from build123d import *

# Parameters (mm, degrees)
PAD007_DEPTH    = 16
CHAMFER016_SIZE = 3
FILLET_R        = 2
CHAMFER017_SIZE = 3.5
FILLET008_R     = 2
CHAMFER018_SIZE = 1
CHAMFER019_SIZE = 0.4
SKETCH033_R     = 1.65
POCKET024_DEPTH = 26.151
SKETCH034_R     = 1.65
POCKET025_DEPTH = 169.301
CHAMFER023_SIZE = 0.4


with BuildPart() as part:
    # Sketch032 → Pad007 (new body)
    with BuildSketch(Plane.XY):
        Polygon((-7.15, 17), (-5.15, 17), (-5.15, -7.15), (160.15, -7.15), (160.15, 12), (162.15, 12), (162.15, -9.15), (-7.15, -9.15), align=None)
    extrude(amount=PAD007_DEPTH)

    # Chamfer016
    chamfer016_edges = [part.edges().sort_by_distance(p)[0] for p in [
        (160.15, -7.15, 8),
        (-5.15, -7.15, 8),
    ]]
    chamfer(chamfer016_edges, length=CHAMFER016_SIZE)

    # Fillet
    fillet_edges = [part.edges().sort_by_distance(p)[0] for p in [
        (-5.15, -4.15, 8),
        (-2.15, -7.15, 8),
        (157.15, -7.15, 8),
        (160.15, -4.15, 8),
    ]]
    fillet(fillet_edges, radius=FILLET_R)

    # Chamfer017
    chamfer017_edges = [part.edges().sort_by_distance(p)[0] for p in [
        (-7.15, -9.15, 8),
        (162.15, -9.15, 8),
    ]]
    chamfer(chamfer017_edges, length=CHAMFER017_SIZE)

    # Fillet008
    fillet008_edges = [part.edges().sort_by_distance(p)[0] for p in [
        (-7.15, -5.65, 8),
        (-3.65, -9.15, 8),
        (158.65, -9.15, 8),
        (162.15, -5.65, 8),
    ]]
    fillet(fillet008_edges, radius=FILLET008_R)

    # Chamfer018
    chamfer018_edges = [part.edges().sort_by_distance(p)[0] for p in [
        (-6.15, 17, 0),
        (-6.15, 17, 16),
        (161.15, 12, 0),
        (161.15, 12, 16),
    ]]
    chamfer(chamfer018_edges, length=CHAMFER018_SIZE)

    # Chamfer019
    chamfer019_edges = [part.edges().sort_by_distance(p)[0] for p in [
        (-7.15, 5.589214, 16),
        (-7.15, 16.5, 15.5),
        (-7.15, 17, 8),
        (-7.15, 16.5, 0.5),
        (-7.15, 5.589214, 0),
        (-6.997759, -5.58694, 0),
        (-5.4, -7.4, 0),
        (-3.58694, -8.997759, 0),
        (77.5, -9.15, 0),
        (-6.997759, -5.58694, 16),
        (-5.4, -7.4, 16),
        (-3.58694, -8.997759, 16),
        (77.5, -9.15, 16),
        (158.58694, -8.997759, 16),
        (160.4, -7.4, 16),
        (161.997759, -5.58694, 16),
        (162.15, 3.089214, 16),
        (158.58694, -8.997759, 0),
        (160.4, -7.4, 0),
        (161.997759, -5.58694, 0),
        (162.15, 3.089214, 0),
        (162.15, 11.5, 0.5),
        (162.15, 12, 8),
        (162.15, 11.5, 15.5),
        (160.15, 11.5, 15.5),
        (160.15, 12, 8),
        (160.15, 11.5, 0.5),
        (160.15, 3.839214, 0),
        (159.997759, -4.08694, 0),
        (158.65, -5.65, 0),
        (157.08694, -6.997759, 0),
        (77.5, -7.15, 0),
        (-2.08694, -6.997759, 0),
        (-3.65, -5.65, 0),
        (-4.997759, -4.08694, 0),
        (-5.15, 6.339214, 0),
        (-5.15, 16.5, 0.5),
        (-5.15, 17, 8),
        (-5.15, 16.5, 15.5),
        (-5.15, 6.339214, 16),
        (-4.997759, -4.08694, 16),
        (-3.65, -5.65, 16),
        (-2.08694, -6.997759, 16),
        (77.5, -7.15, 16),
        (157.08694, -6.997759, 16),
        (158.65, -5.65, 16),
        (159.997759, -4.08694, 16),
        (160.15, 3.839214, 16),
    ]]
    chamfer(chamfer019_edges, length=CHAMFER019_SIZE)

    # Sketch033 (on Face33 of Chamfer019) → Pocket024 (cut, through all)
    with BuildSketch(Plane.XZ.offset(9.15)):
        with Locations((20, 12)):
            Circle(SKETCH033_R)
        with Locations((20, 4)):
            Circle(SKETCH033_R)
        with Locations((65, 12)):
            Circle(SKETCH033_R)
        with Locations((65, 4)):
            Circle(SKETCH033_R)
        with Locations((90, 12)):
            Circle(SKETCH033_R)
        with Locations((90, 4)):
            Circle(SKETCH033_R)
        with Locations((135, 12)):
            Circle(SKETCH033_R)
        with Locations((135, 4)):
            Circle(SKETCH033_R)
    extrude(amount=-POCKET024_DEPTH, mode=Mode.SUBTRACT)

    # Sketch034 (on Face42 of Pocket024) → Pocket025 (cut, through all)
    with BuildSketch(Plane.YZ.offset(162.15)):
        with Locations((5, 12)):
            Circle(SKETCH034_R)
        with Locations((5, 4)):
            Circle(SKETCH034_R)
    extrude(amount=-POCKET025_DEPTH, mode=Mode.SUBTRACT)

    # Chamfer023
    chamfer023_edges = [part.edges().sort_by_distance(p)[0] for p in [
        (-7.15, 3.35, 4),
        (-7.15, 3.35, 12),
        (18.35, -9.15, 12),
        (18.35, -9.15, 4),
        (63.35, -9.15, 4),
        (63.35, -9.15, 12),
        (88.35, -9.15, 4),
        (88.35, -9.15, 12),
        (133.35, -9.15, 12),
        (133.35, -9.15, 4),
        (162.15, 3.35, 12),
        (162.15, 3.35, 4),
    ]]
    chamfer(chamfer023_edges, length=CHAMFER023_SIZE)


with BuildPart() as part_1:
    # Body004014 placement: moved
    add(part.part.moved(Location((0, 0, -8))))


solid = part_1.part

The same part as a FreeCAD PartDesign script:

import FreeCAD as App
import Part
import Sketcher
from FreeCAD import Vector


def edges_at(feature, points):
    """Names of the edges that pass closest to the given points."""
    edges = feature.Shape.Edges
    near = lambda p: min(range(len(edges)), key=lambda i: edges[i].distToShape(Part.Vertex(*p))[0])
    return sorted({f"Edge{near(p) + 1}" for p in points})


def add_polygon(sketch, points):
    """Adds a closed chain of lines whose ends are joined by coincident constraints."""
    first, n = sketch.GeometryCount, len(points)
    for a, b in zip(points, points[1:] + points[:1]):
        sketch.addGeometry(Part.LineSegment(App.Vector(*a, 0), App.Vector(*b, 0)), False)
    for i in range(n):
        sketch.addConstraint(Sketcher.Constraint("Coincident", first + i, 2, first + (i + 1) % n, 1))

doc = App.newDocument("Part")
body = doc.addObject("PartDesign::Body", "Body")

sketch1 = doc.addObject("Sketcher::SketchObject", "Sketch")
body.addObject(sketch1)
sketch1.AttachmentSupport = (doc.XY_Plane, [""])
sketch1.MapMode = "FlatFace"
add_polygon(sketch1, [(-5.15, 17), (-7.15, 17), (-7.15, -9.15), (162.15, -9.15), (162.15, 12), (160.15, 12), (160.15, -7.15), (-5.15, -7.15)])
sketch1.addConstraint(Sketcher.Constraint("Horizontal", 0))
sketch1.addConstraint(Sketcher.Constraint("Vertical", 1))
sketch1.addConstraint(Sketcher.Constraint("Horizontal", 2))
sketch1.addConstraint(Sketcher.Constraint("Vertical", 3))
sketch1.addConstraint(Sketcher.Constraint("Horizontal", 4))
sketch1.addConstraint(Sketcher.Constraint("Vertical", 5))
sketch1.addConstraint(Sketcher.Constraint("Horizontal", 6))
sketch1.addConstraint(Sketcher.Constraint("Vertical", 7))
sketch1.addConstraint(Sketcher.Constraint("Equal", 0, 4))
sketch1.addConstraint(Sketcher.Constraint("DistanceX", 0, 2, 0, 1, 2.0))
sketch1.addConstraint(Sketcher.Constraint("DistanceX", 2, 1, 2, 2, 169.3))
sketch1.addConstraint(Sketcher.Constraint("DistanceY", -1, 1, 0, 2, 17.0))
sketch1.addConstraint(Sketcher.Constraint("DistanceY", -1, 1, 3, 2, 12.0))
sketch1.addConstraint(Sketcher.Constraint("DistanceY", 2, 2, 5, 2, 2.0))
sketch1.addConstraint(Sketcher.Constraint("DistanceY", 1, 2, 1, 1, 26.15))
sketch1.addConstraint(Sketcher.Constraint("DistanceX", 0, 2, -1, 1, 7.15))
pad1 = doc.addObject("PartDesign::Pad", "Pad")
body.addObject(pad1)
pad1.Profile = sketch1
pad1.Length = 16
doc.recompute()

chamfer = doc.addObject("PartDesign::Chamfer", "Chamfer")
body.addObject(chamfer)
chamfer.Base = (pad1, edges_at(pad1, [(160.15, -7.15, 8), (-5.15, -7.15, 8)]))
chamfer.Size = 3
doc.recompute()

fillet = doc.addObject("PartDesign::Fillet", "Fillet")
body.addObject(fillet)
fillet.Base = (chamfer, edges_at(chamfer, [
    (-5.15, -4.15, 8),
    (-2.15, -7.15, 8),
    (157.15, -7.15, 8),
    (160.15, -4.15, 8),
]))
fillet.Radius = 2
doc.recompute()

chamfer2 = doc.addObject("PartDesign::Chamfer", "Chamfer001")
body.addObject(chamfer2)
chamfer2.Base = (fillet, edges_at(fillet, [(-7.15, -9.15, 8), (162.15, -9.15, 8)]))
chamfer2.Size = 3.5
doc.recompute()

fillet2 = doc.addObject("PartDesign::Fillet", "Fillet001")
body.addObject(fillet2)
fillet2.Base = (chamfer2, edges_at(chamfer2, [
    (-7.15, -5.65, 8),
    (-3.65, -9.15, 8),
    (158.65, -9.15, 8),
    (162.15, -5.65, 8),
]))
fillet2.Radius = 2
doc.recompute()

chamfer3 = doc.addObject("PartDesign::Chamfer", "Chamfer002")
body.addObject(chamfer3)
chamfer3.Base = (fillet2, edges_at(fillet2, [
    (-6.15, 17, 0),
    (-6.15, 17, 16),
    (161.15, 12, 0),
    (161.15, 12, 16),
]))
chamfer3.Size = 1
doc.recompute()

chamfer4 = doc.addObject("PartDesign::Chamfer", "Chamfer003")
body.addObject(chamfer4)
chamfer4.Base = (chamfer3, edges_at(chamfer3, [
    (-7.15, 5.589, 16),
    (-7.15, 16.5, 15.5),
    (-7.15, 17, 8),
    (-7.15, 16.5, 0.5),
    (-7.15, 5.589, 0),
    (-6.998, -5.587, 0),
    (-5.4, -7.4, 0),
    (-3.587, -8.998, 0),
    (77.5, -9.15, 0),
    (-6.998, -5.587, 16),
    (-5.4, -7.4, 16),
    (-3.587, -8.998, 16),
    (77.5, -9.15, 16),
    (158.587, -8.998, 16),
    (160.4, -7.4, 16),
    (161.998, -5.587, 16),
    (162.15, 3.089, 16),
    (158.587, -8.998, 0),
    (160.4, -7.4, 0),
    (161.998, -5.587, 0),
    (162.15, 3.089, 0),
    (162.15, 11.5, 0.5),
    (162.15, 12, 8),
    (162.15, 11.5, 15.5),
    (160.15, 11.5, 15.5),
    (160.15, 12, 8),
    (160.15, 11.5, 0.5),
    (160.15, 3.839, 0),
    (159.998, -4.087, 0),
    (158.65, -5.65, 0),
    (157.087, -6.998, 0),
    (77.5, -7.15, 0),
    (-2.087, -6.998, 0),
    (-3.65, -5.65, 0),
    (-4.998, -4.087, 0),
    (-5.15, 6.339, 0),
    (-5.15, 16.5, 0.5),
    (-5.15, 17, 8),
    (-5.15, 16.5, 15.5),
    (-5.15, 6.339, 16),
    (-4.998, -4.087, 16),
    (-3.65, -5.65, 16),
    (-2.087, -6.998, 16),
    (77.5, -7.15, 16),
    (157.087, -6.998, 16),
    (158.65, -5.65, 16),
    (159.998, -4.087, 16),
    (160.15, 3.839, 16),
]))
chamfer4.Size = 0.4

sketch2 = doc.addObject("Sketcher::SketchObject", "Sketch001")
body.addObject(sketch2)
sketch2.AttachmentSupport = (doc.XZ_Plane, [""])
sketch2.MapMode = "FlatFace"
sketch2.AttachmentOffset = App.Placement(Vector(0, 0, 9.15), App.Rotation())
sketch2.addGeometry(Part.Circle(Vector(20, 12, 0), Vector(0, 0, 1), 1.65), False)
sketch2.addGeometry(Part.Circle(Vector(20, 4, 0), Vector(0, 0, 1), 1.65), False)
sketch2.addGeometry(Part.Circle(Vector(65, 12, 0), Vector(0, 0, 1), 1.65), False)
sketch2.addGeometry(Part.Circle(Vector(65, 4, 0), Vector(0, 0, 1), 1.65), False)
sketch2.addGeometry(Part.Circle(Vector(90, 12, 0), Vector(0, 0, 1), 1.65), False)
sketch2.addGeometry(Part.Circle(Vector(90, 4, 0), Vector(0, 0, 1), 1.65), False)
sketch2.addGeometry(Part.Circle(Vector(135, 12, 0), Vector(0, 0, 1), 1.65), False)
sketch2.addGeometry(Part.Circle(Vector(135, 4, 0), Vector(0, 0, 1), 1.65), False)
sketch2.addConstraint(Sketcher.Constraint("Equal", 0, 1))
sketch2.addConstraint(Sketcher.Constraint("Equal", 1, 2))
sketch2.addConstraint(Sketcher.Constraint("Equal", 2, 3))
sketch2.addConstraint(Sketcher.Constraint("Equal", 3, 4))
sketch2.addConstraint(Sketcher.Constraint("Equal", 4, 5))
sketch2.addConstraint(Sketcher.Constraint("Equal", 5, 6))
sketch2.addConstraint(Sketcher.Constraint("Equal", 6, 7))
sketch2.addConstraint(Sketcher.Constraint("Horizontal", 0, 3, 2, 3))
sketch2.addConstraint(Sketcher.Constraint("Horizontal", 1, 3, 3, 3))
sketch2.addConstraint(Sketcher.Constraint("Horizontal", 2, 3, 4, 3))
sketch2.addConstraint(Sketcher.Constraint("Horizontal", 3, 3, 5, 3))
sketch2.addConstraint(Sketcher.Constraint("Horizontal", 4, 3, 6, 3))
sketch2.addConstraint(Sketcher.Constraint("Horizontal", 5, 3, 7, 3))
sketch2.addConstraint(Sketcher.Constraint("Vertical", 0, 3, 1, 3))
sketch2.addConstraint(Sketcher.Constraint("Vertical", 2, 3, 3, 3))
sketch2.addConstraint(Sketcher.Constraint("Vertical", 4, 3, 5, 3))
sketch2.addConstraint(Sketcher.Constraint("Vertical", 6, 3, 7, 3))
sketch2.addConstraint(Sketcher.Constraint("Diameter", 0, 3.3))
sketch2.addConstraint(Sketcher.Constraint("DistanceX", -1, 1, 0, 3, 20.0))
sketch2.addConstraint(Sketcher.Constraint("DistanceY", -1, 1, 0, 3, 12.0))
sketch2.addConstraint(Sketcher.Constraint("DistanceY", -1, 1, 1, 3, 4.0))
sketch2.addConstraint(Sketcher.Constraint("DistanceX", -1, 1, 2, 3, 65.0))
sketch2.addConstraint(Sketcher.Constraint("DistanceX", -1, 1, 4, 3, 90.0))
sketch2.addConstraint(Sketcher.Constraint("DistanceX", -1, 1, 6, 3, 135.0))
pocket1 = doc.addObject("PartDesign::Pocket", "Pocket")
body.addObject(pocket1)
pocket1.Profile = sketch2
pocket1.Type = "ThroughAll"

sketch3 = doc.addObject("Sketcher::SketchObject", "Sketch002")
body.addObject(sketch3)
sketch3.AttachmentSupport = (doc.YZ_Plane, [""])
sketch3.MapMode = "FlatFace"
sketch3.AttachmentOffset = App.Placement(Vector(0, 0, 162.15), App.Rotation())
sketch3.addGeometry(Part.Circle(Vector(5, 12, 0), Vector(0, 0, 1), 1.65), False)
sketch3.addGeometry(Part.Circle(Vector(5, 4, 0), Vector(0, 0, 1), 1.65), False)
sketch3.addConstraint(Sketcher.Constraint("Equal", 0, 1))
sketch3.addConstraint(Sketcher.Constraint("Vertical", 0, 3, 1, 3))
sketch3.addConstraint(Sketcher.Constraint("Diameter", 0, 3.3))
sketch3.addConstraint(Sketcher.Constraint("DistanceX", -1, 1, 0, 3, 5.0))
sketch3.addConstraint(Sketcher.Constraint("DistanceY", -1, 1, 0, 3, 12.0))
sketch3.addConstraint(Sketcher.Constraint("DistanceY", -1, 1, 1, 3, 4.0))
pocket2 = doc.addObject("PartDesign::Pocket", "Pocket001")
body.addObject(pocket2)
pocket2.Profile = sketch3
pocket2.Type = "ThroughAll"
doc.recompute()

chamfer5 = doc.addObject("PartDesign::Chamfer", "Chamfer004")
body.addObject(chamfer5)
chamfer5.Base = (pocket2, edges_at(pocket2, [
    (-7.15, 3.35, 4),
    (-7.15, 3.35, 12),
    (18.35, -9.15, 12),
    (18.35, -9.15, 4),
    (63.35, -9.15, 4),
    (63.35, -9.15, 12),
    (88.35, -9.15, 4),
    (88.35, -9.15, 12),
    (133.35, -9.15, 12),
    (133.35, -9.15, 4),
    (162.15, 3.35, 12),
    (162.15, 3.35, 4),
]))
chamfer5.Size = 0.4
body2 = doc.addObject("PartDesign::Body", "Body001")
doc.recompute()

body.Placement = App.Placement(Vector(0, 0, -8), App.Rotation(Vector(0, 0, 1), 0))
boolean = doc.addObject("PartDesign::Boolean", "Boolean")
body2.addObject(boolean)
boolean.Type = "Fuse"
boolean.addObjects([body])

doc.recompute()
